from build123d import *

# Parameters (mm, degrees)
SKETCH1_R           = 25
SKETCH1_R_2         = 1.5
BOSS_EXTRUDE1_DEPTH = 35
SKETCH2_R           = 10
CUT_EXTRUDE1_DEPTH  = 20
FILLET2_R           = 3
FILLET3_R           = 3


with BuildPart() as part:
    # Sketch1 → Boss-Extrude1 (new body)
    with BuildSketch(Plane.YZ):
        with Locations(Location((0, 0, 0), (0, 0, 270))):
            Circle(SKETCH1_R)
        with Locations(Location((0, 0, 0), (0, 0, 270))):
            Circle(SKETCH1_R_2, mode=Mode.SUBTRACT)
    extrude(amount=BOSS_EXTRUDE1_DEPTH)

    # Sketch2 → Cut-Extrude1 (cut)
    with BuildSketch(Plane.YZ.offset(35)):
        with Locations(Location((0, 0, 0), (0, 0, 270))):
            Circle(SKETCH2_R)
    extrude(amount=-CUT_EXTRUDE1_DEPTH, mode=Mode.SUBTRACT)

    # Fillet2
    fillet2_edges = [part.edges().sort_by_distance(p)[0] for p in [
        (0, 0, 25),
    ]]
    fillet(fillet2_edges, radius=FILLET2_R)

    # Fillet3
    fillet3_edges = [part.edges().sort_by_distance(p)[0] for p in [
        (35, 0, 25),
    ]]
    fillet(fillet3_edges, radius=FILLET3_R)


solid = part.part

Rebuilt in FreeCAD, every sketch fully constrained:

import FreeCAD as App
import Part
import Sketcher

V = App.Vector


def edges_at(feature, points):
    """Names of the edges that pass closest to the given points."""
    edges = feature.Shape.Edges
    near = lambda p: min(range(len(edges)), key=lambda i: edges[i].distToShape(Part.Vertex(*p))[0])
    return sorted({f"Edge{near(p) + 1}" for p in points})

doc = App.newDocument("Part")
body = doc.addObject("PartDesign::Body", "Body")

# Sketch on YZ plane
sketch1 = body.newObject("Sketcher::SketchObject", "Sketch")
sketch1.AttachmentSupport = (doc.getObject("YZ_Plane"), [""])
sketch1.MapMode = "FlatFace"
sketch1.addGeometry([
    Part.Circle(V(0, 0, 0), V(0, 0, 1), 25),
    Part.Circle(V(0, 0, 0), V(0, 0, 1), 1.5),
], False)
sketch1.addConstraint([
    Sketcher.Constraint("Coincident", 0, 3, -1, 1),
    Sketcher.Constraint("Coincident", 1, 3, -1, 1),
    Sketcher.Constraint("Diameter", 0, 50.0),
    Sketcher.Constraint("Diameter", 1, 3.0),
])
pad1 = body.newObject("PartDesign::Pad", "Pad")
pad1.Profile = sketch1
pad1.Length = 35

# Sketch on YZ plane
sketch2 = body.newObject("Sketcher::SketchObject", "Sketch001")
sketch2.AttachmentSupport = (doc.getObject("YZ_Plane"), [""])
sketch2.MapMode = "FlatFace"
sketch2.AttachmentOffset = App.Placement(V(0, 0, 35), App.Rotation())
sketch2.addGeometry(Part.Circle(V(0, 0, 0), V(0, 0, 1), 10), False)
sketch2.addConstraint([
    Sketcher.Constraint("Coincident", 0, 3, -1, 1),
    Sketcher.Constraint("Diameter", 0, 20.0),
])
pocket1 = body.newObject("PartDesign::Pocket", "Pocket")
pocket1.Profile = sketch2
pocket1.Length = 20
doc.recompute()

fillet = body.newObject("PartDesign::Fillet", "Fillet")
fillet.Base = (pocket1, edges_at(pocket1, [(0, 0, 25)]))
fillet.Radius = 3
doc.recompute()

fillet2 = body.newObject("PartDesign::Fillet", "Fillet001")
fillet2.Base = (fillet, edges_at(fillet, [(35, 0, 25)]))
fillet2.Radius = 3

doc.recompute()
